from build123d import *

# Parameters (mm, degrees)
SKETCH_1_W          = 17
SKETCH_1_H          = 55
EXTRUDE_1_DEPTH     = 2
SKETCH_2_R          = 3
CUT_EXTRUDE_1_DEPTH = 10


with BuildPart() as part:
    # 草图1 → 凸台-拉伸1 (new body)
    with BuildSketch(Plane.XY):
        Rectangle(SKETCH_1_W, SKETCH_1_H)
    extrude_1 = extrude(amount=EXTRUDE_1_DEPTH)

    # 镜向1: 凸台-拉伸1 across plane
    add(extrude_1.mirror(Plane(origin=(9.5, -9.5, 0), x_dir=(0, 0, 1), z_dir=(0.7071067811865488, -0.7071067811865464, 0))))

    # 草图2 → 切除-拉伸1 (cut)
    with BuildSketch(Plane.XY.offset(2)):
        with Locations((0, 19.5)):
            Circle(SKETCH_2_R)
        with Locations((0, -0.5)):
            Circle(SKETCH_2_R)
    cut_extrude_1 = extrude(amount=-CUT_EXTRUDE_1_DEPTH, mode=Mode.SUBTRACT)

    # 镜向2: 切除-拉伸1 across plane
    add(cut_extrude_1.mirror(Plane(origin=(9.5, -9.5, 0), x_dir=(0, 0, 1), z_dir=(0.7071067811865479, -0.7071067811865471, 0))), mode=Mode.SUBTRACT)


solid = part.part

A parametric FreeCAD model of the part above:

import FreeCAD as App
import Part
import Sketcher
Q = App.Units.Quantity


def add_polygon(sketch, points):
    """Adds a closed chain of lines whose ends are joined by coincident constraints."""
    first, n = sketch.GeometryCount, len(points)
    for a, b in zip(points, points[1:] + points[:1]):
        sketch.addGeometry(Part.LineSegment(App.Vector(*a, 0), App.Vector(*b, 0)), False)
    for i in range(n):
        sketch.addConstraint(Sketcher.Constraint("Coincident", first + i, 2, first + (i + 1) % n, 1))

doc = App.newDocument("Part")
body = doc.addObject("PartDesign::Body", "Body")

# Sketch on XY plane
sketch1 = body.newObject("Sketcher::SketchObject", "Sketch")
sketch1.AttachmentSupport = (doc.getObject("XY_Plane"), [""])
sketch1.MapMode = "FlatFace"
add_polygon(sketch1, [(-8.5, 27.5), (-8.5, -27.5), (8.5, -27.5), (8.5, 27.5)])  # lines 0-3
sketch1.addConstraint([
    Sketcher.Constraint("Vertical", 0),
    Sketcher.Constraint("Horizontal", 1),
    Sketcher.Constraint("Vertical", 2),
    Sketcher.Constraint("Horizontal", 3),
    Sketcher.Constraint("Symmetric", 0, 2, 2, 2, -1, 1),
    Sketcher.Constraint("DistanceX", 1, 1, 1, 2, Q("17 mm")),
    Sketcher.Constraint("DistanceY", 0, 2, 0, 1, Q("55 mm")),
])
pad1 = body.newObject("PartDesign::Pad", "Pad")
pad1.Profile = sketch1
pad1.Length = 2
doc.recompute()

datumplane = body.newObject("PartDesign::Plane", "DatumPlane")
datumplane.Placement = App.Placement(App.Vector(9.5, -9.5, 0), App.Rotation(App.Vector(-0.707106781, -0.707106781, 0), App.Vector(0, 0, -1), App.Vector(0.707106781, -0.707106781, 0), "ZXY"))
mirrored = body.newObject("PartDesign::Mirrored", "Mirrored")
mirrored.Originals = [pad1]
mirrored.MirrorPlane = (datumplane, [""])
body.Tip = mirrored

# Sketch on XY plane
sketch2 = body.newObject("Sketcher::SketchObject", "Sketch001")
sketch2.AttachmentSupport = (doc.getObject("XY_Plane"), [""])
sketch2.MapMode = "FlatFace"
sketch2.AttachmentOffset = App.Placement(App.Vector(0, 0, 2), App.Rotation())
sketch2.addGeometry([
    Part.Circle(App.Vector(0, 19.5, 0), App.Vector(0, 0, 1), 3),
    Part.Circle(App.Vector(0, -0.5, 0), App.Vector(0, 0, 1), 3),
], False)
sketch2.addConstraint([
    Sketcher.Constraint("Equal", 0, 1),
    Sketcher.Constraint("PointOnObject", 0, 3, -2),
    Sketcher.Constraint("PointOnObject", 1, 3, -2),
    Sketcher.Constraint("Diameter", 0, Q("6 mm")),
    Sketcher.Constraint("DistanceY", 1, 3, 0, 3, Q("20 mm")),
    Sketcher.Constraint("DistanceY", -1, 1, 0, 3, Q("19.5 mm")),
])
pocket1 = body.newObject("PartDesign::Pocket", "Pocket")
pocket1.Profile = sketch2
pocket1.Length = 10
doc.recompute()

datumplane2 = body.newObject("PartDesign::Plane", "DatumPlane001")
datumplane2.Placement = App.Placement(App.Vector(9.5, -9.5, 0), App.Rotation(App.Vector(-0.707106781, -0.707106781, 0), App.Vector(0, 0, -1), App.Vector(0.707106781, -0.707106781, 0), "ZXY"))
mirrored2 = body.newObject("PartDesign::Mirrored", "Mirrored001")
mirrored2.Originals = [pocket1]
mirrored2.MirrorPlane = (datumplane2, [""])
body.Tip = mirrored2

doc.recompute()
